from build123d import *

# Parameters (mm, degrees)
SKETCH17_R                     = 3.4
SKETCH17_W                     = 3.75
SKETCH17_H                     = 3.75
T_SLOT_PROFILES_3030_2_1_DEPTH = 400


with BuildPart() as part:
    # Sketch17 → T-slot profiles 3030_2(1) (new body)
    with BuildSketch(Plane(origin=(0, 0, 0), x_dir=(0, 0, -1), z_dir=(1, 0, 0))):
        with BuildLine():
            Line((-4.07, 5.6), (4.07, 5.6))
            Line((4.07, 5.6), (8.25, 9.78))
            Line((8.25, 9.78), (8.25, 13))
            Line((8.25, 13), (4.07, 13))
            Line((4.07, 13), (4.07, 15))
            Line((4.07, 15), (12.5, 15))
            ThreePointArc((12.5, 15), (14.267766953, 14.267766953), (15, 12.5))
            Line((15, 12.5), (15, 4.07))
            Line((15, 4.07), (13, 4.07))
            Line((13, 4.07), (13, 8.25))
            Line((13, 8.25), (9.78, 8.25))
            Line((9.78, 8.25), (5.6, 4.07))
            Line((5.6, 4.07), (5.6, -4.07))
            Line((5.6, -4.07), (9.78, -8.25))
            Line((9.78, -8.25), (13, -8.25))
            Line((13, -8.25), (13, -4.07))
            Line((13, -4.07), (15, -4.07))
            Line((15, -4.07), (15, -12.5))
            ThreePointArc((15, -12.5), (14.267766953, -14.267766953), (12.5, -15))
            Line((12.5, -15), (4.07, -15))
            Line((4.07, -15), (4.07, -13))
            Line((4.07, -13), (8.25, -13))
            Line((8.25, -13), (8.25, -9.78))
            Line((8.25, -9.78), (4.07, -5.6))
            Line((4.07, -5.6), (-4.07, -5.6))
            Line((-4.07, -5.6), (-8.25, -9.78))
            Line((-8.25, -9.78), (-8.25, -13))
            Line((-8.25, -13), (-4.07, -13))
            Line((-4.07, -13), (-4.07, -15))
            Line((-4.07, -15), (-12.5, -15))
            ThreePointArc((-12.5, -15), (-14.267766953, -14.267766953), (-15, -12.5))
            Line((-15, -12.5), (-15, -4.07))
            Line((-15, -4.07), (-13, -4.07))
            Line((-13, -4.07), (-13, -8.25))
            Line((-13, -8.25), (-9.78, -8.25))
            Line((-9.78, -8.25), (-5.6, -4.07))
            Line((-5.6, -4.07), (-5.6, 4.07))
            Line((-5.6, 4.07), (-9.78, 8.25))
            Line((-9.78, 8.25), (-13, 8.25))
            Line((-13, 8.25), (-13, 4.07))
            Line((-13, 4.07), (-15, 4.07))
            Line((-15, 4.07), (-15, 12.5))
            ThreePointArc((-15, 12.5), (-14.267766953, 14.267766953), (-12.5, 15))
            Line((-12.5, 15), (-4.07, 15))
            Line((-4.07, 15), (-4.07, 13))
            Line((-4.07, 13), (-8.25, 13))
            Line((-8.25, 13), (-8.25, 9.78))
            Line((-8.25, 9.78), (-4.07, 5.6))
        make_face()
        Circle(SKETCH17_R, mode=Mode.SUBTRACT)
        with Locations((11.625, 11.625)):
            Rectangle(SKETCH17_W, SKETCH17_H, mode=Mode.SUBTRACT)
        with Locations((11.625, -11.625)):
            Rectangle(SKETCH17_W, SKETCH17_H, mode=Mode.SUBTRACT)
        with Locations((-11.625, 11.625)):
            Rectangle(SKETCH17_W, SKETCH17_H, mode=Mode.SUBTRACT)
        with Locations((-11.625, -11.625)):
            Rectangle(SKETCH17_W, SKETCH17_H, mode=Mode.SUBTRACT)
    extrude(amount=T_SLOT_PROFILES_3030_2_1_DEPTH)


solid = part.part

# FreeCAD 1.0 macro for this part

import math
import FreeCAD as App
import Part
import Sketcher
from FreeCAD import Vector
Q = App.Units.Quantity


def add_polygon(sketch, points):
    """Adds a closed chain of lines whose ends are joined by coincident constraints."""
    first, n = sketch.GeometryCount, len(points)
    for a, b in zip(points, points[1:] + points[:1]):
        sketch.addGeometry(Part.LineSegment(App.Vector(*a, 0), App.Vector(*b, 0)), False)
    for i in range(n):
        sketch.addConstraint(Sketcher.Constraint("Coincident", first + i, 2, first + (i + 1) % n, 1))

doc = App.newDocument("Part")
params = doc.addObject("Spreadsheet::Sheet", "Params")
for row, (alias, value) in enumerate([
    ("sketch1_diameter", "6.8 mm"),
    ("sketch1_radius", "2.5 mm"),
    ("sketch1_width", "2 mm"),
    ("sketch1_width2", "3.22 mm"),
    ("sketch1_width3", "8.43 mm"),
    ("pad1_length", "400 mm"),
], start=1):
    params.set(f"A{row}", alias)
    params.set(f"B{row}", "=" + value)
    params.setAlias(f"B{row}", alias)

body = doc.addObject("PartDesign::Body", "Body")

# Sketch on YZ plane
sketch1 = body.newObject("Sketcher::SketchObject", "Sketch")
sketch1.AttachmentSupport = (doc.getObject("YZ_Plane"), [""])
sketch1.MapMode = "FlatFace"
sketch1.addGeometry(Part.LineSegment(Vector(5.6, -4.07, 0), Vector(5.6, 4.07, 0)), False)  # 0
sketch1.addGeometry(Part.LineSegment(Vector(5.6, 4.07, 0), Vector(9.78, 8.25, 0)), False)  # 1
sketch1.addGeometry(Part.LineSegment(Vector(9.78, 8.25, 0), Vector(13, 8.25, 0)), False)  # 2
sketch1.addGeometry(Part.LineSegment(Vector(13, 8.25, 0), Vector(13, 4.07, 0)), False)  # 3
sketch1.addGeometry(Part.LineSegment(Vector(13, 4.07, 0), Vector(15, 4.07, 0)), False)  # 4
sketch1.addGeometry(Part.LineSegment(Vector(15, 4.07, 0), Vector(15, 12.5, 0)), False)  # 5
sketch1.addGeometry(Part.ArcOfCircle(Part.Circle(Vector(12.5, 12.5, 0), Vector(0, 0, 1), 2.5), math.radians(0), math.radians(90)), False)  # 6
sketch1.addGeometry(Part.LineSegment(Vector(12.5, 15, 0), Vector(4.07, 15, 0)), False)  # 7
sketch1.addGeometry(Part.LineSegment(Vector(4.07, 15, 0), Vector(4.07, 13, 0)), False)  # 8
sketch1.addGeometry(Part.LineSegment(Vector(4.07, 13, 0), Vector(8.25, 13, 0)), False)  # 9
sketch1.addGeometry(Part.LineSegment(Vector(8.25, 13, 0), Vector(8.25, 9.78, 0)), False)  # 10
sketch1.addGeometry(Part.LineSegment(Vector(8.25, 9.78, 0), Vector(4.07, 5.6, 0)), False)  # 11
sketch1.addGeometry(Part.LineSegment(Vector(4.07, 5.6, 0), Vector(-4.07, 5.6, 0)), False)  # 12
sketch1.addGeometry(Part.LineSegment(Vector(-4.07, 5.6, 0), Vector(-8.25, 9.78, 0)), False)  # 13
sketch1.addGeometry(Part.LineSegment(Vector(-8.25, 9.78, 0), Vector(-8.25, 13, 0)), False)  # 14
sketch1.addGeometry(Part.LineSegment(Vector(-8.25, 13, 0), Vector(-4.07, 13, 0)), False)  # 15
sketch1.addGeometry(Part.LineSegment(Vector(-4.07, 13, 0), Vector(-4.07, 15, 0)), False)  # 16
sketch1.addGeometry(Part.LineSegment(Vector(-4.07, 15, 0), Vector(-12.5, 15, 0)), False)  # 17
sketch1.addGeometry(Part.ArcOfCircle(Part.Circle(Vector(-12.5, 12.5, 0), Vector(0, 0, 1), 2.5), math.radians(90), math.radians(180)), False)  # 18
sketch1.addGeometry(Part.LineSegment(Vector(-15, 12.5, 0), Vector(-15, 4.07, 0)), False)  # 19
sketch1.addGeometry(Part.LineSegment(Vector(-15, 4.07, 0), Vector(-13, 4.07, 0)), False)  # 20
sketch1.addGeometry(Part.LineSegment(Vector(-13, 4.07, 0), Vector(-13, 8.25, 0)), False)  # 21
sketch1.addGeometry(Part.LineSegment(Vector(-13, 8.25, 0), Vector(-9.78, 8.25, 0)), False)  # 22
sketch1.addGeometry(Part.LineSegment(Vector(-9.78, 8.25, 0), Vector(-5.6, 4.07, 0)), False)  # 23
sketch1.addGeometry(Part.LineSegment(Vector(-5.6, 4.07, 0), Vector(-5.6, -4.07, 0)), False)  # 24
sketch1.addGeometry(Part.LineSegment(Vector(-5.6, -4.07, 0), Vector(-9.78, -8.25, 0)), False)  # 25
sketch1.addGeometry(Part.LineSegment(Vector(-9.78, -8.25, 0), Vector(-13, -8.25, 0)), False)  # 26
sketch1.addGeometry(Part.LineSegment(Vector(-13, -8.25, 0), Vector(-13, -4.07, 0)), False)  # 27
sketch1.addGeometry(Part.LineSegment(Vector(-13, -4.07, 0), Vector(-15, -4.07, 0)), False)  # 28
sketch1.addGeometry(Part.LineSegment(Vector(-15, -4.07, 0), Vector(-15, -12.5, 0)), False)  # 29
sketch1.addGeometry(Part.ArcOfCircle(Part.Circle(Vector(-12.5, -12.5, 0), Vector(0, 0, 1), 2.5), math.radians(180), math.radians(270)), False)  # 30
sketch1.addGeometry(Part.LineSegment(Vector(-12.5, -15, 0), Vector(-4.07, -15, 0)), False)  # 31
sketch1.addGeometry(Part.LineSegment(Vector(-4.07, -15, 0), Vector(-4.07, -13, 0)), False)  # 32
sketch1.addGeometry(Part.LineSegment(Vector(-4.07, -13, 0), Vector(-8.25, -13, 0)), False)  # 33
sketch1.addGeometry(Part.LineSegment(Vector(-8.25, -13, 0), Vector(-8.25, -9.78, 0)), False)  # 34
sketch1.addGeometry(Part.LineSegment(Vector(-8.25, -9.78, 0), Vector(-4.07, -5.6, 0)), False)  # 35
sketch1.addGeometry(Part.LineSegment(Vector(-4.07, -5.6, 0), Vector(4.07, -5.6, 0)), False)  # 36
sketch1.addGeometry(Part.LineSegment(Vector(4.07, -5.6, 0), Vector(8.25, -9.78, 0)), False)  # 37
sketch1.addGeometry(Part.LineSegment(Vector(8.25, -9.78, 0), Vector(8.25, -13, 0)), False)  # 38
sketch1.addGeometry(Part.LineSegment(Vector(8.25, -13, 0), Vector(4.07, -13, 0)), False)  # 39
sketch1.addGeometry(Part.LineSegment(Vector(4.07, -13, 0), Vector(4.07, -15, 0)), False)  # 40
sketch1.addGeometry(Part.LineSegment(Vector(4.07, -15, 0), Vector(12.5, -15, 0)), False)  # 41
sketch1.addGeometry(Part.ArcOfCircle(Part.Circle(Vector(12.5, -12.5, 0), Vector(0, 0, 1), 2.5), math.radians(-90), math.radians(0)), False)  # 42
sketch1.addGeometry(Part.LineSegment(Vector(15, -12.5, 0), Vector(15, -4.07, 0)), False)  # 43
sketch1.addGeometry(Part.LineSegment(Vector(15, -4.07, 0), Vector(13, -4.07, 0)), False)  # 44
sketch1.addGeometry(Part.LineSegment(Vector(13, -4.07, 0), Vector(13, -8.25, 0)), False)  # 45
sketch1.addGeometry(Part.LineSegment(Vector(13, -8.25, 0), Vector(9.78, -8.25, 0)), False)  # 46
sketch1.addGeometry(Part.LineSegment(Vector(9.78, -8.25, 0), Vector(5.6, -4.07, 0)), False)  # 47
add_polygon(sketch1, [(-13.5, -9.75), (-9.75, -9.75), (-9.75, -13.5), (-13.5, -13.5)])  # lines 48-51
add_polygon(sketch1, [(-13.5, 13.5), (-9.75, 13.5), (-9.75, 9.75), (-13.5, 9.75)])  # lines 52-55
add_polygon(sketch1, [(9.75, -9.75), (13.5, -9.75), (13.5, -13.5), (9.75, -13.5)])  # lines 56-59
sketch1.addGeometry(Part.Circle(Vector(0, 0, 0), Vector(0, 0, 1), 3.4), False)  # 60
add_polygon(sketch1, [(9.75, 13.5), (13.5, 13.5), (13.5, 9.75), (9.75, 9.75)])  # lines 61-64
sketch1.addConstraint(Sketcher.Constraint("Coincident", 0, 2, 1, 1))
sketch1.addConstraint(Sketcher.Constraint("Coincident", 1, 2, 2, 1))
sketch1.addConstraint(Sketcher.Constraint("Coincident", 2, 2, 3, 1))
sketch1.addConstraint(Sketcher.Constraint("Coincident", 3, 2, 4, 1))
sketch1.addConstraint(Sketcher.Constraint("Coincident", 4, 2, 5, 1))
sketch1.addConstraint(Sketcher.Constraint("Tangent", 5, 2, 6, 1))
sketch1.addConstraint(Sketcher.Constraint("Tangent", 6, 2, 7, 1))
sketch1.addConstraint(Sketcher.Constraint("Coincident", 7, 2, 8, 1))
sketch1.addConstraint(Sketcher.Constraint("Coincident", 8, 2, 9, 1))
sketch1.addConstraint(Sketcher.Constraint("Coincident", 9, 2, 10, 1))
sketch1.addConstraint(Sketcher.Constraint("Coincident", 10, 2, 11, 1))
sketch1.addConstraint(Sketcher.Constraint("Coincident", 11, 2, 12, 1))
sketch1.addConstraint(Sketcher.Constraint("Coincident", 12, 2, 13, 1))
sketch1.addConstraint(Sketcher.Constraint("Coincident", 13, 2, 14, 1))
sketch1.addConstraint(Sketcher.Constraint("Coincident", 14, 2, 15, 1))
sketch1.addConstraint(Sketcher.Constraint("Coincident", 15, 2, 16, 1))
sketch1.addConstraint(Sketcher.Constraint("Coincident", 16, 2, 17, 1))
sketch1.addConstraint(Sketcher.Constraint("Tangent", 17, 2, 18, 1))
sketch1.addConstraint(Sketcher.Constraint("Tangent", 18, 2, 19, 1))
sketch1.addConstraint(Sketcher.Constraint("Coincident", 19, 2, 20, 1))
sketch1.addConstraint(Sketcher.Constraint("Coincident", 20, 2, 21, 1))
sketch1.addConstraint(Sketcher.Constraint("Coincident", 21, 2, 22, 1))
sketch1.addConstraint(Sketcher.Constraint("Coincident", 22, 2, 23, 1))
sketch1.addConstraint(Sketcher.Constraint("Coincident", 23, 2, 24, 1))
sketch1.addConstraint(Sketcher.Constraint("Coincident", 24, 2, 25, 1))
sketch1.addConstraint(Sketcher.Constraint("Coincident", 25, 2, 26, 1))
sketch1.addConstraint(Sketcher.Constraint("Coincident", 26, 2, 27, 1))
sketch1.addConstraint(Sketcher.Constraint("Coincident", 27, 2, 28, 1))
sketch1.addConstraint(Sketcher.Constraint("Coincident", 28, 2, 29, 1))
sketch1.addConstraint(Sketcher.Constraint("Tangent", 29, 2, 30, 1))
sketch1.addConstraint(Sketcher.Constraint("Tangent", 30, 2, 31, 1))
sketch1.addConstraint(Sketcher.Constraint("Coincident", 31, 2, 32, 1))
sketch1.addConstraint(Sketcher.Constraint("Coincident", 32, 2, 33, 1))
sketch1.addConstraint(Sketcher.Constraint("Coincident", 33, 2, 34, 1))
sketch1.addConstraint(Sketcher.Constraint("Coincident", 34, 2, 35, 1))
sketch1.addConstraint(Sketcher.Constraint("Coincident", 35, 2, 36, 1))
sketch1.addConstraint(Sketcher.Constraint("Coincident", 36, 2, 37, 1))
sketch1.addConstraint(Sketcher.Constraint("Coincident", 37, 2, 38, 1))
sketch1.addConstraint(Sketcher.Constraint("Coincident", 38, 2, 39, 1))
sketch1.addConstraint(Sketcher.Constraint("Coincident", 39, 2, 40, 1))
sketch1.addConstraint(Sketcher.Constraint("Coincident", 40, 2, 41, 1))
sketch1.addConstraint(Sketcher.Constraint("Tangent", 41, 2, 42, 1))
sketch1.addConstraint(Sketcher.Constraint("Tangent", 42, 2, 43, 1))
sketch1.addConstraint(Sketcher.Constraint("Coincident", 43, 2, 44, 1))
sketch1.addConstraint(Sketcher.Constraint("Coincident", 44, 2, 45, 1))
sketch1.addConstraint(Sketcher.Constraint("Coincident", 45, 2, 46, 1))
sketch1.addConstraint(Sketcher.Constraint("Coincident", 46, 2, 47, 1))
sketch1.addConstraint(Sketcher.Constraint("Coincident", 47, 2, 0, 1))
sketch1.addConstraint(Sketcher.Constraint("Vertical", 0))
sketch1.addConstraint(Sketcher.Constraint("Horizontal", 2))
sketch1.addConstraint(Sketcher.Constraint("Vertical", 3))
sketch1.addConstraint(Sketcher.Constraint("Horizontal", 4))
sketch1.addConstraint(Sketcher.Constraint("Vertical", 5))
sketch1.addConstraint(Sketcher.Constraint("Horizontal", 7))
sketch1.addConstraint(Sketcher.Constraint("Vertical", 8))
sketch1.addConstraint(Sketcher.Constraint("Horizontal", 9))
sketch1.addConstraint(Sketcher.Constraint("Vertical", 10))
sketch1.addConstraint(Sketcher.Constraint("Horizontal", 12))
sketch1.addConstraint(Sketcher.Constraint("Vertical", 14))
sketch1.addConstraint(Sketcher.Constraint("Horizontal", 15))
sketch1.addConstraint(Sketcher.Constraint("Vertical", 16))
sketch1.addConstraint(Sketcher.Constraint("Horizontal", 17))
sketch1.addConstraint(Sketcher.Constraint("Vertical", 19))
sketch1.addConstraint(Sketcher.Constraint("Horizontal", 20))
sketch1.addConstraint(Sketcher.Constraint("Vertical", 21))
sketch1.addConstraint(Sketcher.Constraint("Horizontal", 22))
sketch1.addConstraint(Sketcher.Constraint("Vertical", 24))
sketch1.addConstraint(Sketcher.Constraint("Horizontal", 26))
sketch1.addConstraint(Sketcher.Constraint("Vertical", 27))
sketch1.addConstraint(Sketcher.Constraint("Horizontal", 28))
sketch1.addConstraint(Sketcher.Constraint("Vertical", 29))
sketch1.addConstraint(Sketcher.Constraint("Horizontal", 31))
sketch1.addConstraint(Sketcher.Constraint("Vertical", 32))
sketch1.addConstraint(Sketcher.Constraint("Horizontal", 33))
sketch1.addConstraint(Sketcher.Constraint("Vertical", 34))
sketch1.addConstraint(Sketcher.Constraint("Horizontal", 36))
sketch1.addConstraint(Sketcher.Constraint("Vertical", 38))
sketch1.addConstraint(Sketcher.Constraint("Horizontal", 39))
sketch1.addConstraint(Sketcher.Constraint("Vertical", 40))
sketch1.addConstraint(Sketcher.Constraint("Horizontal", 41))
sketch1.addConstraint(Sketcher.Constraint("Vertical", 43))
sketch1.addConstraint(Sketcher.Constraint("Horizontal", 44))
sketch1.addConstraint(Sketcher.Constraint("Vertical", 45))
sketch1.addConstraint(Sketcher.Constraint("Horizontal", 46))
sketch1.addConstraint(Sketcher.Constraint("Horizontal", 48))
sketch1.addConstraint(Sketcher.Constraint("Vertical", 49))
sketch1.addConstraint(Sketcher.Constraint("Horizontal", 50))
sketch1.addConstraint(Sketcher.Constraint("Vertical", 51))
sketch1.addConstraint(Sketcher.Constraint("Horizontal", 52))
sketch1.addConstraint(Sketcher.Constraint("Vertical", 53))
sketch1.addConstraint(Sketcher.Constraint("Horizontal", 54))
sketch1.addConstraint(Sketcher.Constraint("Vertical", 55))
sketch1.addConstraint(Sketcher.Constraint("Horizontal", 56))
sketch1.addConstraint(Sketcher.Constraint("Vertical", 57))
sketch1.addConstraint(Sketcher.Constraint("Horizontal", 58))
sketch1.addConstraint(Sketcher.Constraint("Vertical", 59))
sketch1.addConstraint(Sketcher.Constraint("Horizontal", 61))
sketch1.addConstraint(Sketcher.Constraint("Vertical", 62))
sketch1.addConstraint(Sketcher.Constraint("Horizontal", 63))
sketch1.addConstraint(Sketcher.Constraint("Vertical", 64))
sketch1.addConstraint(Sketcher.Constraint("Coincident", 60, 3, -1, 1))
sketch1.addConstraint(Sketcher.Constraint("Equal", 6, 18))
sketch1.addConstraint(Sketcher.Constraint("Equal", 18, 30))
sketch1.addConstraint(Sketcher.Constraint("Equal", 30, 42))
sketch1.addConstraint(Sketcher.Constraint("Symmetric", 6, 3, 30, 3, -1, 1))
sketch1.addConstraint(Sketcher.Constraint("Symmetric", 18, 3, 42, 3, -1, 1))
sketch1.addConstraint(Sketcher.Constraint("Symmetric", 0, 2, 24, 2, -1, 1))
sketch1.addConstraint(Sketcher.Constraint("Symmetric", 1, 2, 25, 2, -1, 1))
sketch1.addConstraint(Sketcher.Constraint("Symmetric", 3, 2, 27, 2, -1, 1))
sketch1.addConstraint(Sketcher.Constraint("Symmetric", 8, 2, 32, 2, -1, 1))
sketch1.addConstraint(Sketcher.Constraint("Symmetric", 10, 2, 34, 2, -1, 1))
sketch1.addConstraint(Sketcher.Constraint("Symmetric", 11, 2, 35, 2, -1, 1))
sketch1.addConstraint(Sketcher.Constraint("Symmetric", 13, 2, 37, 2, -1, 1))
sketch1.addConstraint(Sketcher.Constraint("Symmetric", 15, 2, 39, 2, -1, 1))
sketch1.addConstraint(Sketcher.Constraint("Symmetric", 20, 2, 44, 2, -1, 1))
sketch1.addConstraint(Sketcher.Constraint("Symmetric", 22, 2, 46, 2, -1, 1))
sketch1.addConstraint(Sketcher.Constraint("Symmetric", 54, 2, 56, 2, -1, 1))
sketch1.addConstraint(Sketcher.Constraint("Symmetric", 52, 2, 58, 2, -1, 1))
sketch1.addConstraint(Sketcher.Constraint("Symmetric", 50, 2, 61, 2, -1, 1))
sketch1.addConstraint(Sketcher.Constraint("Symmetric", 48, 2, 63, 2, -1, 1))
sketch1.addConstraint(Sketcher.Constraint("Symmetric", 6, 3, 18, 3, -2))
sketch1.addConstraint(Sketcher.Constraint("Symmetric", 10, 2, 13, 2, -2))
sketch1.addConstraint(Sketcher.Constraint("Symmetric", 8, 2, 15, 2, -2))
sketch1.addConstraint(Sketcher.Constraint("Symmetric", 3, 2, 20, 2, -2))
sketch1.addConstraint(Sketcher.Constraint("Symmetric", 1, 2, 22, 2, -2))
sketch1.addConstraint(Sketcher.Constraint("Symmetric", 51, 2, 56, 2, -2))
sketch1.addConstraint(Sketcher.Constraint("Symmetric", 49, 2, 58, 2, -2))
sketch1.addConstraint(Sketcher.Constraint("Parallel", 1, 11))
sketch1.addConstraint(Sketcher.Constraint("Perpendicular", 11, 13))
sketch1.addConstraint(Sketcher.Constraint("Parallel", 13, 23))
sketch1.addConstraint(Sketcher.Constraint("Perpendicular", 35, 37))
sketch1.addConstraint(Sketcher.Constraint("Parallel", 37, 47))
sketch1.addConstraint(Sketcher.Constraint("Horizontal", 0, 2, 3, 2))
sketch1.addConstraint(Sketcher.Constraint("Horizontal", 20, 2, 23, 2))
sketch1.addConstraint(Sketcher.Constraint("Vertical", 8, 2, 11, 2))
sketch1.addConstraint(Sketcher.Constraint("Equal", 36, 0))
sketch1.addConstraint(Sketcher.Constraint("Equal", 39, 3))
sketch1.addConstraint(Sketcher.Constraint("Equal", 41, 5))
sketch1.addConstraint(Sketcher.Constraint("Equal", 44, 8))
sketch1.addConstraint(Sketcher.Constraint("Equal", 46, 10))
sketch1.addConstraint(Sketcher.Constraint("Equal", 63, 49))
sketch1.addConstraint(Sketcher.Constraint("Diameter", 60, Q("6.8 mm")))
sketch1.addConstraint(Sketcher.Constraint("Radius", 6, Q("2.5 mm")))
sketch1.addConstraint(Sketcher.Constraint("DistanceX", 4, 1, 4, 2, Q("2 mm")))
sketch1.addConstraint(Sketcher.Constraint("DistanceX", -1, 1, 2, 2, Q("13 mm")))
sketch1.addConstraint(Sketcher.Constraint("DistanceX", 2, 1, 2, 2, Q("3.22 mm")))
sketch1.addConstraint(Sketcher.Constraint("DistanceX", 7, 2, 7, 1, Q("8.43 mm")))
sketch1.addConstraint(Sketcher.Constraint("DistanceX", 9, 1, 9, 2, Q("4.18 mm")))
sketch1.addConstraint(Sketcher.Constraint("DistanceX", 48, 1, 48, 2, Q("3.75 mm")))
sketch1.addConstraint(Sketcher.Constraint("DistanceY", 49, 2, -1, 1, Q("13.5 mm")))
sketch1.addConstraint(Sketcher.Constraint("DistanceX", 50, 2, -1, 1, Q("13.5 mm")))
sketch1.setExpression("Constraints[157]", "Params.sketch1_diameter")
sketch1.setExpression("Constraints[158]", "Params.sketch1_radius")
sketch1.setExpression("Constraints[159]", "Params.sketch1_width")
sketch1.setExpression("Constraints[161]", "Params.sketch1_width2")
sketch1.setExpression("Constraints[162]", "Params.sketch1_width3")
pad1 = body.newObject("PartDesign::Pad", "Pad")
pad1.Profile = sketch1
pad1.setExpression("Length", "Params.pad1_length")

doc.recompute()
